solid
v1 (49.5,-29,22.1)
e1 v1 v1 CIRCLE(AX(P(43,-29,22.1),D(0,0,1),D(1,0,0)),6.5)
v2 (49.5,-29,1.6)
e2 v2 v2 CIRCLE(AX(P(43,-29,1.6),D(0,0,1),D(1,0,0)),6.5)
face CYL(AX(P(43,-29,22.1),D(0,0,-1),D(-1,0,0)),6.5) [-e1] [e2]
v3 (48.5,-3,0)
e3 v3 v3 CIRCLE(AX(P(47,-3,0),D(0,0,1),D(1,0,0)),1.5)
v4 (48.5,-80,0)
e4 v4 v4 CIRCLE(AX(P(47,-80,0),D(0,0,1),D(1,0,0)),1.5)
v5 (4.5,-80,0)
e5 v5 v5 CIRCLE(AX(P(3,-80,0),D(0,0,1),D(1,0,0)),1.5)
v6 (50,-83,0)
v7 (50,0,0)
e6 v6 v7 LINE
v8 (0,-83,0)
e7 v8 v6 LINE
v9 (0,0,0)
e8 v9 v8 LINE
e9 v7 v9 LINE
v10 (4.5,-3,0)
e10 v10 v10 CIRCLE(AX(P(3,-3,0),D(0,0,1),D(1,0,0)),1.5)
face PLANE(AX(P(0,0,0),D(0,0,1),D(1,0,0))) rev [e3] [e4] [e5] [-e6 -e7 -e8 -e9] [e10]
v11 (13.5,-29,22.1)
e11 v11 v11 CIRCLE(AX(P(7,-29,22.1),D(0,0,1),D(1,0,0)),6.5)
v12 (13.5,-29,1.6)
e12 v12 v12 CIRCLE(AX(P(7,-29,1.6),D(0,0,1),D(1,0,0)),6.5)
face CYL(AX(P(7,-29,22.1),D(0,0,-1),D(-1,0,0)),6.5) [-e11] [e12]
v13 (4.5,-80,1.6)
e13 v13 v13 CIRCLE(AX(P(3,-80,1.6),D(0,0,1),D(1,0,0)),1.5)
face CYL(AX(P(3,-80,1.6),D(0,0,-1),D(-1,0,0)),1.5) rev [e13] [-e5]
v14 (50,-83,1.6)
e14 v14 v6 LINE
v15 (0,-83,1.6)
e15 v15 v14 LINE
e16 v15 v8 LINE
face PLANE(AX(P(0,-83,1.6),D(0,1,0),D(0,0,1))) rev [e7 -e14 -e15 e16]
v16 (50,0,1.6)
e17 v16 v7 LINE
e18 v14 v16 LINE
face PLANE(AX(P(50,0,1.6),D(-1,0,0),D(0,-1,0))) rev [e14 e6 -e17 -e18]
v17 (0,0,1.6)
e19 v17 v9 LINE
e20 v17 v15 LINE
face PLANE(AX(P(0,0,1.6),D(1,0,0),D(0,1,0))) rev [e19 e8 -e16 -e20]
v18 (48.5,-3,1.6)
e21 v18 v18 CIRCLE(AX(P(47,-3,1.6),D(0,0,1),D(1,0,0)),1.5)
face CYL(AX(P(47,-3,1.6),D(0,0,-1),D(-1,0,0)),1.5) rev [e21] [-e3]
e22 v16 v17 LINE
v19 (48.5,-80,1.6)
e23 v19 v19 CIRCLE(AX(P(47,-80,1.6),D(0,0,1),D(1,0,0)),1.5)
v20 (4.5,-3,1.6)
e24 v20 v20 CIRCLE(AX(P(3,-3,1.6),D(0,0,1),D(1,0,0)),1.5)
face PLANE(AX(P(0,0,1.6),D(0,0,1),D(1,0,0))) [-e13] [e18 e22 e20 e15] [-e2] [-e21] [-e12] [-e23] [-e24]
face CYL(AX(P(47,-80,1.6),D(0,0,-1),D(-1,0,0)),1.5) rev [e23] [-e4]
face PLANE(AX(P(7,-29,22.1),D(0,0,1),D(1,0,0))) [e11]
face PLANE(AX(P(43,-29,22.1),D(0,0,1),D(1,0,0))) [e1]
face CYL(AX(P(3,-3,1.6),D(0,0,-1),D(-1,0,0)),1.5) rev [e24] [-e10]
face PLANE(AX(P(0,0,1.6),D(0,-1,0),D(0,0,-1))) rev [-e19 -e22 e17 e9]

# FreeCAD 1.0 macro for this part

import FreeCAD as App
import Part
import Sketcher

V = App.Vector
Q = App.Units.Quantity


def add_polygon(sketch, points):
    """Adds a closed chain of lines whose ends are joined by coincident constraints."""
    first, n = sketch.GeometryCount, len(points)
    for a, b in zip(points, points[1:] + points[:1]):
        sketch.addGeometry(Part.LineSegment(App.Vector(*a, 0), App.Vector(*b, 0)), False)
    for i in range(n):
        sketch.addConstraint(Sketcher.Constraint("Coincident", first + i, 2, first + (i + 1) % n, 1))

doc = App.newDocument("Part")
body = doc.addObject("PartDesign::Body", "Body")

sketch1 = body.newObject("Sketcher::SketchObject", "Sketch")
sketch1.AttachmentSupport = (doc.getObject("XY_Plane"), [""])
sketch1.MapMode = "FlatFace"
add_polygon(sketch1, [(0, 0), (0, -83), (50, -83), (50, 0)])
sketch1.addGeometry(Part.Circle(V(3, -80, 0), V(0, 0, 1), 1.5), False)
sketch1.addGeometry(Part.Circle(V(47, -80, 0), V(0, 0, 1), 1.5), False)
sketch1.addGeometry(Part.Circle(V(3, -3, 0), V(0, 0, 1), 1.5), False)
sketch1.addGeometry(Part.Circle(V(47, -3, 0), V(0, 0, 1), 1.5), False)
sketch1.addConstraint([
    Sketcher.Constraint("Vertical", 0),
    Sketcher.Constraint("Horizontal", 1),
    Sketcher.Constraint("Vertical", 2),
    Sketcher.Constraint("Horizontal", 3),
    Sketcher.Constraint("Coincident", 3, 2, -1, 1),
    Sketcher.Constraint("Equal", 4, 5),
    Sketcher.Constraint("Equal", 5, 6),
    Sketcher.Constraint("Equal", 6, 7),
    Sketcher.Constraint("Horizontal", 4, 3, 5, 3),
    Sketcher.Constraint("Horizontal", 6, 3, 7, 3),
    Sketcher.Constraint("Vertical", 4, 3, 6, 3),
    Sketcher.Constraint("Vertical", 5, 3, 7, 3),
    Sketcher.Constraint("Diameter", 4, Q("3 mm")),
    Sketcher.Constraint("DistanceX", 1, 1, 1, 2, Q("50 mm")),
    Sketcher.Constraint("DistanceY", 0, 2, 0, 1, Q("83 mm")),
    Sketcher.Constraint("DistanceX", -1, 1, 4, 3, Q("3 mm")),
    Sketcher.Constraint("DistanceY", 4, 3, -1, 1, Q("80 mm")),
    Sketcher.Constraint("DistanceX", -1, 1, 5, 3, Q("47 mm")),
    Sketcher.Constraint("DistanceY", 6, 3, -1, 1, Q("3 mm")),
])
pad1 = body.newObject("PartDesign::Pad", "Pad")
pad1.Profile = sketch1
pad1.Length = 1.6

sketch2 = body.newObject("Sketcher::SketchObject", "Sketch001")
sketch2.AttachmentSupport = (doc.getObject("XY_Plane"), [""])
sketch2.MapMode = "FlatFace"
sketch2.AttachmentOffset = App.Placement(V(0, 0, 1.6), App.Rotation())
sketch2.addGeometry([
    Part.Circle(V(7, -29, 0), V(0, 0, 1), 6.5),
    Part.Circle(V(43, -29, 0), V(0, 0, 1), 6.5),
], False)
sketch2.addConstraint([
    Sketcher.Constraint("Equal", 0, 1),
    Sketcher.Constraint("Horizontal", 0, 3, 1, 3),
    Sketcher.Constraint("Diameter", 0, Q("13 mm")),
    Sketcher.Constraint("DistanceX", -1, 1, 0, 3, Q("7 mm")),
    Sketcher.Constraint("DistanceY", 0, 3, -1, 1, Q("29 mm")),
    Sketcher.Constraint("DistanceX", -1, 1, 1, 3, Q("43 mm")),
])
pad2 = body.newObject("PartDesign::Pad", "Pad001")
pad2.Profile = sketch2
pad2.Length = 20.5

doc.recompute()
